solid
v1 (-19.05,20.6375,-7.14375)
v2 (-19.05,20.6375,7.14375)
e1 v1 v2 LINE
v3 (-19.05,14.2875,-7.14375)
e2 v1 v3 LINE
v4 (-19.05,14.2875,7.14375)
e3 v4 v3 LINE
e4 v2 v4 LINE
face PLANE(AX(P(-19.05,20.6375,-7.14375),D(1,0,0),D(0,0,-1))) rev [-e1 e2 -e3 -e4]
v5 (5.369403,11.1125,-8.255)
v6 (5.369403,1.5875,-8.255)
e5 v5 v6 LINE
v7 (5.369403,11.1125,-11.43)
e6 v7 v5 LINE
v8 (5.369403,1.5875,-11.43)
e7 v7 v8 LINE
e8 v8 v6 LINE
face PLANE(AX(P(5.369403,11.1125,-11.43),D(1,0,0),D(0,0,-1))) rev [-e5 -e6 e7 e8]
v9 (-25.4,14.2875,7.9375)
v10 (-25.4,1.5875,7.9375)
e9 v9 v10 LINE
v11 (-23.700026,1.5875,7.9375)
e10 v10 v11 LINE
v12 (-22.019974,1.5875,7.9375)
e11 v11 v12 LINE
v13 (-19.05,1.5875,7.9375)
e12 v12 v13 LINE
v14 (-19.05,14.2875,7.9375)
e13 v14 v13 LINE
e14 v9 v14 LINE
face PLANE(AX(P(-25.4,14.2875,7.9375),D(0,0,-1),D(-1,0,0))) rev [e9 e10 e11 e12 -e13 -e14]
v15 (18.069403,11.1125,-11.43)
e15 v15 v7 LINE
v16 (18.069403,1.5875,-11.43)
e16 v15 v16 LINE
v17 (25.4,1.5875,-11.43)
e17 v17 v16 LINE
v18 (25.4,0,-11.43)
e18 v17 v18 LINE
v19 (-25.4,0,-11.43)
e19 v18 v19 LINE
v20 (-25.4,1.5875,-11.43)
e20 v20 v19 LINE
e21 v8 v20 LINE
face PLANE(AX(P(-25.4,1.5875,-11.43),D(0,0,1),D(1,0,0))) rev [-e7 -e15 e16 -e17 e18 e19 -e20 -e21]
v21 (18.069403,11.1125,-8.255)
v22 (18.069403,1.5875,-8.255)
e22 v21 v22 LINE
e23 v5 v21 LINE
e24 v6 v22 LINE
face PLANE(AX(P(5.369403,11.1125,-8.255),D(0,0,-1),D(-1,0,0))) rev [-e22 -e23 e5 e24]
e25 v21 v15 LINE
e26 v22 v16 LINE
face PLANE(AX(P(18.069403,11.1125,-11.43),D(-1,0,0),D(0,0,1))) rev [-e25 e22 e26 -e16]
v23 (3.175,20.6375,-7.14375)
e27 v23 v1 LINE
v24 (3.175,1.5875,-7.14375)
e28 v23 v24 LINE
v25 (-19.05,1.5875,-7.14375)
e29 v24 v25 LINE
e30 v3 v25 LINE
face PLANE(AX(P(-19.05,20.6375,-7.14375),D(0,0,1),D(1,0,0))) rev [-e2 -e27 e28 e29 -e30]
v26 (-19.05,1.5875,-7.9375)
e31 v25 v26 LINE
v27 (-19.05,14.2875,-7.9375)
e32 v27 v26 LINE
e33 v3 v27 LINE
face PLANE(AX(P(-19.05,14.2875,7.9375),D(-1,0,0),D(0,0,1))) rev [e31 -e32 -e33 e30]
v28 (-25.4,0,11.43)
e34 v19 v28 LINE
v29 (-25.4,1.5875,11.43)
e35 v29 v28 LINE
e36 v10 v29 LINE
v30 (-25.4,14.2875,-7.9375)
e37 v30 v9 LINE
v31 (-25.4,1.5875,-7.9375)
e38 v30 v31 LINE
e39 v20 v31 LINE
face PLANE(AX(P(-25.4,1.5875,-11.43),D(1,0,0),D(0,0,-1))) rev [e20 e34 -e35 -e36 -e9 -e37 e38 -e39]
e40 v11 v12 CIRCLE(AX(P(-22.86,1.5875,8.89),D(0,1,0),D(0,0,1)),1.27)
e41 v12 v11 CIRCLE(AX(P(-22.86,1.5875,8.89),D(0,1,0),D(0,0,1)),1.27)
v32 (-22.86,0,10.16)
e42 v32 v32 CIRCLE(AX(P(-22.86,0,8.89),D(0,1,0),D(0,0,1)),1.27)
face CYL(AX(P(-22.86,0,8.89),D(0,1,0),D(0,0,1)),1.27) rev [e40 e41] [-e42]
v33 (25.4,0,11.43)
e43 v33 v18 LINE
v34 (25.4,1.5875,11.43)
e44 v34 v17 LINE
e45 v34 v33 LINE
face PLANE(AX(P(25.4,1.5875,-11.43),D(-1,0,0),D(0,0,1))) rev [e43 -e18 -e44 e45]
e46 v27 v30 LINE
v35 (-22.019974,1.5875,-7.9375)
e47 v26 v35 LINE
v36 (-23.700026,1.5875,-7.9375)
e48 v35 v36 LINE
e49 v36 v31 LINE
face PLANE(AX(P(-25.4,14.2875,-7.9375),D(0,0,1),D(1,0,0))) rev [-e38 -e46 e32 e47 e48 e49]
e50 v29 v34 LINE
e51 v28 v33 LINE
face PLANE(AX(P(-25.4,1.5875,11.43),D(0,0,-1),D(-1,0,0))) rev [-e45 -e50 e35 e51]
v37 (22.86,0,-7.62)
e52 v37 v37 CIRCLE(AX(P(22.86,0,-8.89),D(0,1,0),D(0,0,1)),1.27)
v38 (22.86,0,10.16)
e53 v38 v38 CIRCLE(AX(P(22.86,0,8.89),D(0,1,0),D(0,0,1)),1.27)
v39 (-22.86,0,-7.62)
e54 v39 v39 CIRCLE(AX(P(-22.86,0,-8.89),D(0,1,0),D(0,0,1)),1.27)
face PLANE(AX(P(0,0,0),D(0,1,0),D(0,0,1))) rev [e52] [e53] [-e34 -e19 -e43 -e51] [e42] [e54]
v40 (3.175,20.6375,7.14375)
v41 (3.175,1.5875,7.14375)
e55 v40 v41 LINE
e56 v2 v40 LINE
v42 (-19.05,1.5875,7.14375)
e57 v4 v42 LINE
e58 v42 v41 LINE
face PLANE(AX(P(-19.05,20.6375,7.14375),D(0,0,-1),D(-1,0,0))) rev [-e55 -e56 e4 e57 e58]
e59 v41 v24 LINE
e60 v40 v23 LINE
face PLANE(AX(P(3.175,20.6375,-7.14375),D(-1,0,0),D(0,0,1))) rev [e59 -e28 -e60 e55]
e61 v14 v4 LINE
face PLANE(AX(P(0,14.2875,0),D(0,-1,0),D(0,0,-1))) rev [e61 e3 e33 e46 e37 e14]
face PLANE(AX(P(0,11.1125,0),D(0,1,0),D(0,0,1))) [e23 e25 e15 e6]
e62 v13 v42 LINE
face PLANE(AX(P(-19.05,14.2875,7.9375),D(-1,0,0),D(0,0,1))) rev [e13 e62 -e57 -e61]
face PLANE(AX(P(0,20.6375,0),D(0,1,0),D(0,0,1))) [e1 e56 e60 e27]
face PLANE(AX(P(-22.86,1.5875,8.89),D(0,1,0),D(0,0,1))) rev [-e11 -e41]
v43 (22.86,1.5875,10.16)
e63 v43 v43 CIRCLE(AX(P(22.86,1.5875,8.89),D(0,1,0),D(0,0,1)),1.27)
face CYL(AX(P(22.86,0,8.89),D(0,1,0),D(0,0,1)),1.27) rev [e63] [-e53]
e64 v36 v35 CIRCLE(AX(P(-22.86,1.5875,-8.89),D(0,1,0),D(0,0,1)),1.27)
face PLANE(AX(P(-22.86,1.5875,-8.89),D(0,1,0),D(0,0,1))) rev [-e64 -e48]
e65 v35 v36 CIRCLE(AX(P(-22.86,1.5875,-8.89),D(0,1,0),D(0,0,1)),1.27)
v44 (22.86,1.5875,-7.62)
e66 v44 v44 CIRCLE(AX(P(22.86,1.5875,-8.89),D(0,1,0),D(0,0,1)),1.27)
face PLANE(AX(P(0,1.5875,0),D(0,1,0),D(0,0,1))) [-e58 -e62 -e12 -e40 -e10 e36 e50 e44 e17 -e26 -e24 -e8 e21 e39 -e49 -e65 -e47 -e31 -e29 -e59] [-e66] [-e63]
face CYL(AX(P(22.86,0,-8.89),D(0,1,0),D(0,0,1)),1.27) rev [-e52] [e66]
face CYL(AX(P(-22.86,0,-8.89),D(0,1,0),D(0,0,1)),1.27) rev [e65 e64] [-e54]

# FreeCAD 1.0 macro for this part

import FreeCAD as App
import Part
import Sketcher
from FreeCAD import Vector
Q = App.Units.Quantity


def add_polygon(sketch, points):
    """Adds a closed chain of lines whose ends are joined by coincident constraints."""
    first, n = sketch.GeometryCount, len(points)
    for a, b in zip(points, points[1:] + points[:1]):
        sketch.addGeometry(Part.LineSegment(App.Vector(*a, 0), App.Vector(*b, 0)), False)
    for i in range(n):
        sketch.addConstraint(Sketcher.Constraint("Coincident", first + i, 2, first + (i + 1) % n, 1))

doc = App.newDocument("Part")
body = doc.addObject("PartDesign::Body", "Body")

# Sketch on XZ plane
sketch1 = body.newObject("Sketcher::SketchObject", "Sketch")
sketch1.AttachmentSupport = (doc.getObject("XZ_Plane"), [""])
sketch1.MapMode = "FlatFace"
add_polygon(sketch1, [(-25, -11), (-25, 11), (25, 11), (25, -11)])  # lines 0-3
sketch1.addConstraint([
    Sketcher.Constraint("Vertical", 0),
    Sketcher.Constraint("Horizontal", 1),
    Sketcher.Constraint("Vertical", 2),
    Sketcher.Constraint("Horizontal", 3),
    Sketcher.Constraint("Symmetric", 0, 2, 2, 2, -1, 1),
    Sketcher.Constraint("DistanceX", 1, 1, 1, 2, Q("2 in")),
    Sketcher.Constraint("DistanceY", 0, 1, 0, 2, Q("0.9 in")),
])
pad1 = body.newObject("PartDesign::Pad", "Pad")
pad1.Profile = sketch1
pad1.Length = Q("0.0625 in")
pad1.Reversed = True

# Sketch on XZ plane
sketch2 = body.newObject("Sketcher::SketchObject", "Sketch001")
sketch2.AttachmentSupport = (doc.getObject("XZ_Plane"), [""])
sketch2.MapMode = "FlatFace"
sketch2.AttachmentOffset = App.Placement(Vector(0, 0, -0.0625 * 25.4), App.Rotation())
add_polygon(sketch2, [(-25, -8), (-25, 8), (-19, 8), (-19, -8)])  # lines 0-3
sketch2.addConstraint([
    Sketcher.Constraint("Vertical", 0),
    Sketcher.Constraint("Horizontal", 1),
    Sketcher.Constraint("Vertical", 2),
    Sketcher.Constraint("Horizontal", 3),
    Sketcher.Constraint("DistanceX", 0, 2, -1, 1, Q("1 in")),
    Sketcher.Constraint("DistanceX", 1, 1, 1, 2, Q("0.25 in")),
    Sketcher.Constraint("DistanceY", 0, 1, 0, 2, Q("0.625 in")),
    Sketcher.Constraint("DistanceY", -1, 1, 0, 2, Q("0.3125 in")),
])
pad2 = body.newObject("PartDesign::Pad", "Pad001")
pad2.Profile = sketch2
pad2.Length = Q("0.5 in")
pad2.Reversed = True

# Sketch on XZ plane
sketch3 = body.newObject("Sketcher::SketchObject", "Sketch002")
sketch3.AttachmentSupport = (doc.getObject("XZ_Plane"), [""])
sketch3.MapMode = "FlatFace"
sketch3.AttachmentOffset = App.Placement(Vector(0, 0, -0.0625 * 25.4), App.Rotation())
add_polygon(sketch3, [(-19, -7), (-19, 7), (3, 7), (3, -7)])  # lines 0-3
sketch3.addConstraint([
    Sketcher.Constraint("Vertical", 0),
    Sketcher.Constraint("Horizontal", 1),
    Sketcher.Constraint("Vertical", 2),
    Sketcher.Constraint("Horizontal", 3),
    Sketcher.Constraint("DistanceX", 1, 1, 1, 2, Q("0.875 in")),
    Sketcher.Constraint("DistanceY", 0, 1, 0, 2, Q("0.5625 in")),
    Sketcher.Constraint("DistanceX", 0, 2, -1, 1, Q("0.75 in")),
    Sketcher.Constraint("DistanceY", -1, 1, 0, 2, Q("0.28125 in")),
])
pad3 = body.newObject("PartDesign::Pad", "Pad002")
pad3.Profile = sketch3
pad3.Length = Q("0.75 in")
pad3.Reversed = True

# Sketch on XZ plane
sketch4 = body.newObject("Sketcher::SketchObject", "Sketch003")
sketch4.AttachmentSupport = (doc.getObject("XZ_Plane"), [""])
sketch4.MapMode = "FlatFace"
sketch4.AttachmentOffset = App.Placement(Vector(0, 0, -0.0625 * 25.4), App.Rotation())
add_polygon(sketch4, [(5.4, -11.4), (5.4, -8.3), (18.1, -8.3), (18.1, -11.4)])  # lines 0-3
sketch4.addConstraint([
    Sketcher.Constraint("Vertical", 0),
    Sketcher.Constraint("Horizontal", 1),
    Sketcher.Constraint("Vertical", 2),
    Sketcher.Constraint("Horizontal", 3),
    Sketcher.Constraint("DistanceX", 1, 1, 1, 2, Q("0.5 in")),
    Sketcher.Constraint("DistanceY", 0, 1, 0, 2, Q("0.125 in")),
    Sketcher.Constraint("DistanceY", 2, 2, -1, 1, Q("0.45 in")),
    Sketcher.Constraint("DistanceX", -1, 1, 0, 2, Q("5.369403 mm")),
])
pad4 = body.newObject("PartDesign::Pad", "Pad003")
pad4.Profile = sketch4
pad4.Length = Q("0.375 in")
pad4.Reversed = True

# Sketch on XZ plane
sketch5 = body.newObject("Sketcher::SketchObject", "Sketch004")
sketch5.AttachmentSupport = (doc.getObject("XZ_Plane"), [""])
sketch5.MapMode = "FlatFace"
sketch5.AttachmentOffset = App.Placement(Vector(0, 0, -0.0625 * 25.4), App.Rotation())
sketch5.addGeometry([
    Part.Circle(Vector(-22.9, -8.9, 0), Vector(0, 0, 1), 1.3),
    Part.Circle(Vector(22.9, -8.9, 0), Vector(0, 0, 1), 1.3),
    Part.Circle(Vector(-22.9, 8.9, 0), Vector(0, 0, 1), 1.3),
    Part.Circle(Vector(22.9, 8.9, 0), Vector(0, 0, 1), 1.3),
], False)
sketch5.addConstraint([
    Sketcher.Constraint("Equal", 0, 1),
    Sketcher.Constraint("Equal", 1, 2),
    Sketcher.Constraint("Equal", 2, 3),
    Sketcher.Constraint("Symmetric", 1, 3, 2, 3, -1, 1),
    Sketcher.Constraint("Symmetric", 0, 3, 3, 3, -1, 1),
    Sketcher.Constraint("Symmetric", 0, 3, 1, 3, -2),
    Sketcher.Constraint("Diameter", 0, Q("0.1 in")),
    Sketcher.Constraint("DistanceX", 0, 3, -1, 1, Q("0.9 in")),
    Sketcher.Constraint("DistanceY", 0, 3, 2, 3, Q("0.7 in")),
])
pocket1 = body.newObject("PartDesign::Pocket", "Pocket")
pocket1.Profile = sketch5
pocket1.Type = "ThroughAll"
pocket1.Reversed = True

doc.recompute()
